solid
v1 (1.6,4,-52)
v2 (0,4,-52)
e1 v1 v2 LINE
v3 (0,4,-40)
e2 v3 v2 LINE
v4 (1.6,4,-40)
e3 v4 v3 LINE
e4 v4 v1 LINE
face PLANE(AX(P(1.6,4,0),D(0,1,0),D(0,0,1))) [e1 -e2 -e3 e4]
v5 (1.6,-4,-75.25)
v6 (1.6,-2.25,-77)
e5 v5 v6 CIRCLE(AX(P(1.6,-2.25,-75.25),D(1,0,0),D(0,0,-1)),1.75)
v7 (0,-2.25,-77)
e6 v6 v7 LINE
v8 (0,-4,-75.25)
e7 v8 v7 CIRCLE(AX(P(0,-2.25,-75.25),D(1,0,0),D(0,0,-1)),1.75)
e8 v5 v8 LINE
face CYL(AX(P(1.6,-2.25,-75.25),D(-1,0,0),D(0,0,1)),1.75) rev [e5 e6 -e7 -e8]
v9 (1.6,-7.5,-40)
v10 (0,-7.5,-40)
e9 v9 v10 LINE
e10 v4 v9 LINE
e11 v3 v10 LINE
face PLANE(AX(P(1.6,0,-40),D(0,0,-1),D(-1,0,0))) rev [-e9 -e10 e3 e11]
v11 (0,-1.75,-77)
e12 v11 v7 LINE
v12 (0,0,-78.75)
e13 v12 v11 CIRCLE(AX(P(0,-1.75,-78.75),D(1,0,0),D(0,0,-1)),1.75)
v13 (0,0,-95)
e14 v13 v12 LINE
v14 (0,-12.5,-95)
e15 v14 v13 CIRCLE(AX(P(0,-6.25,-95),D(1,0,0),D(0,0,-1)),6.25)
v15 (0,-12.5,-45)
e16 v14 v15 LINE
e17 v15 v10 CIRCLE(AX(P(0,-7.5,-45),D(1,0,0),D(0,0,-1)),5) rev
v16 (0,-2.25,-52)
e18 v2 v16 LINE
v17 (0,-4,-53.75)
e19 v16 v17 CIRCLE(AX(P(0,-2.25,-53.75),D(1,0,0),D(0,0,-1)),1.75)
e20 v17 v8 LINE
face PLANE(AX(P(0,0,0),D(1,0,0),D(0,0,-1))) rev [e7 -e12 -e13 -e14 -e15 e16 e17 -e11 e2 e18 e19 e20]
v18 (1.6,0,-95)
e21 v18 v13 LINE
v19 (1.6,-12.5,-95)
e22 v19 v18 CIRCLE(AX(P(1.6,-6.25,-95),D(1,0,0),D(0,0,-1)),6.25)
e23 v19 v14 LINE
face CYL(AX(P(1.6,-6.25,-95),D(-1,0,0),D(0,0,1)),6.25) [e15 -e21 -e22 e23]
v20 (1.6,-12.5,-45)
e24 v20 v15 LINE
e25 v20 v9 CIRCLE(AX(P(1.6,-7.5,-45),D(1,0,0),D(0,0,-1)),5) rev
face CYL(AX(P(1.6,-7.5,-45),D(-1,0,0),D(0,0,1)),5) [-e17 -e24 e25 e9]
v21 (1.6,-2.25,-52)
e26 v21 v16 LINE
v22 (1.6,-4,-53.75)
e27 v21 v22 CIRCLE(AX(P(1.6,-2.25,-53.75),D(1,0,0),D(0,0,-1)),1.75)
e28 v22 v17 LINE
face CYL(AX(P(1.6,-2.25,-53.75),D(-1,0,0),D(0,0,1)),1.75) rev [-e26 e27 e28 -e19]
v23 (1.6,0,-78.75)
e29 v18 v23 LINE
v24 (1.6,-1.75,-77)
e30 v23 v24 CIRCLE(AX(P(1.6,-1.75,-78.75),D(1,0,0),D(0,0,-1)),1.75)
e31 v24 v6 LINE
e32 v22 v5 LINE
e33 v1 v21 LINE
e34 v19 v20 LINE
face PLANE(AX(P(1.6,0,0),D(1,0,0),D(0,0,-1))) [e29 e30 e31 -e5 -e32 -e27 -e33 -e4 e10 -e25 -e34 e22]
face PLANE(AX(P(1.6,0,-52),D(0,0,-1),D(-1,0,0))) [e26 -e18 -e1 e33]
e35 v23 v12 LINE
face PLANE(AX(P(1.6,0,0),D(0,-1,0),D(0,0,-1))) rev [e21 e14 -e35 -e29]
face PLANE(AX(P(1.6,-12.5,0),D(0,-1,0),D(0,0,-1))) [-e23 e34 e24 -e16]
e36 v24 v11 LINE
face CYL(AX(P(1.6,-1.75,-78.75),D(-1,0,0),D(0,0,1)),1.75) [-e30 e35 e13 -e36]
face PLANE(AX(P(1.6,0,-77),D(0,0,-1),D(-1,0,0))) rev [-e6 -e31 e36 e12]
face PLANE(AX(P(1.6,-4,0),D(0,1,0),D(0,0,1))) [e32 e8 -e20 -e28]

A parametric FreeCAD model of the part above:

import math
import FreeCAD as App
import Part
import Sketcher
from FreeCAD import Vector
Q = App.Units.Quantity

doc = App.newDocument("Part")
params = doc.addObject("Spreadsheet::Sheet", "Params")
for row, (alias, value) in enumerate([
    ("sketch1_radius", "5 mm"),
    ("sketch1_height", "50 mm"),
    ("sketch1_height2", "12 mm"),
    ("sketch1_radius2", "6.25 mm"),
    ("sketch1_radius3", "1.75 mm"),
    ("pad1_length", "1.6 mm"),
], start=1):
    params.set(f"A{row}", alias)
    params.set(f"B{row}", "=" + value)
    params.setAlias(f"B{row}", alias)

body = doc.addObject("PartDesign::Body", "Body")

# Sketch on YZ plane
sketch1 = doc.addObject("Sketcher::SketchObject", "Sketch")
body.addObject(sketch1)
sketch1.AttachmentSupport = (doc.YZ_Plane, [""])
sketch1.MapMode = "FlatFace"
sketch1.addGeometry([
    Part.LineSegment(Vector(-12.5, -45, 0), Vector(-12.5, -95, 0)),  # 0
    Part.ArcOfCircle(Part.Circle(Vector(-6.25, -95, 0), Vector(0, 0, 1), 6.25), math.radians(180), math.radians(360)),  # 1
    Part.LineSegment(Vector(0, -95, 0), Vector(0, -78.75, 0)),  # 2
    Part.ArcOfCircle(Part.Circle(Vector(-1.75, -78.75, 0), Vector(0, 0, 1), 1.75), math.radians(0), math.radians(90)),  # 3
    Part.LineSegment(Vector(-1.75, -77, 0), Vector(-2.25, -77, 0)),  # 4
    Part.ArcOfCircle(Part.Circle(Vector(-2.25, -75.25, 0), Vector(0, 0, 1), 1.75), math.radians(180), math.radians(270)),  # 5
    Part.LineSegment(Vector(-4, -75.25, 0), Vector(-4, -53.75, 0)),  # 6
    Part.ArcOfCircle(Part.Circle(Vector(-2.25, -53.75, 0), Vector(0, 0, 1), 1.75), math.radians(90), math.radians(180)),  # 7
    Part.LineSegment(Vector(-2.25, -52, 0), Vector(4, -52, 0)),  # 8
    Part.LineSegment(Vector(4, -52, 0), Vector(4, -40, 0)),  # 9
    Part.LineSegment(Vector(4, -40, 0), Vector(-7.5, -40, 0)),  # 10
    Part.ArcOfCircle(Part.Circle(Vector(-7.5, -45, 0), Vector(0, 0, 1), 5), math.radians(90), math.radians(180)),  # 11
], False)
sketch1.addConstraint([
    Sketcher.Constraint("Tangent", 0, 2, 1, 1),
    Sketcher.Constraint("Tangent", 1, 2, 2, 1),
    Sketcher.Constraint("Tangent", 2, 2, 3, 1),
    Sketcher.Constraint("Tangent", 3, 2, 4, 1),
    Sketcher.Constraint("Tangent", 4, 2, 5, 2),
    Sketcher.Constraint("Tangent", 5, 1, 6, 1),
    Sketcher.Constraint("Tangent", 6, 2, 7, 2),
    Sketcher.Constraint("Tangent", 7, 1, 8, 1),
    Sketcher.Constraint("Coincident", 8, 2, 9, 1),
    Sketcher.Constraint("Coincident", 9, 2, 10, 1),
    Sketcher.Constraint("Tangent", 10, 2, 11, 1),
    Sketcher.Constraint("Tangent", 11, 2, 0, 1),
    Sketcher.Constraint("Vertical", 0),
    Sketcher.Constraint("Vertical", 2),
    Sketcher.Constraint("Horizontal", 4),
    Sketcher.Constraint("Vertical", 6),
    Sketcher.Constraint("Horizontal", 8),
    Sketcher.Constraint("Vertical", 9),
    Sketcher.Constraint("Horizontal", 10),
    Sketcher.Constraint("Equal", 3, 5),
    Sketcher.Constraint("Equal", 5, 7),
    Sketcher.Constraint("PointOnObject", 1, 2, -2),
    Sketcher.Constraint("Radius", 11, Q("5 mm")),
    Sketcher.Constraint("DistanceY", 0, 2, 0, 1, Q("50 mm")),
    Sketcher.Constraint("DistanceY", 9, 1, 9, 2, Q("12 mm")),
    Sketcher.Constraint("Radius", 1, Q("6.25 mm")),
    Sketcher.Constraint("Radius", 3, Q("1.75 mm")),
    Sketcher.Constraint("DistanceX", 4, 2, 4, 1, Q("0.5 mm")),
    Sketcher.Constraint("DistanceX", 10, 2, 10, 1, Q("11.5 mm")),
    Sketcher.Constraint("DistanceY", 6, 1, 6, 2, Q("21.5 mm")),
    Sketcher.Constraint("DistanceY", 1, 3, -1, 1, Q("95 mm")),
])
sketch1.setExpression("Constraints[22]", "Params.sketch1_radius")
sketch1.setExpression("Constraints[23]", "Params.sketch1_height")
sketch1.setExpression("Constraints[24]", "Params.sketch1_height2")
sketch1.setExpression("Constraints[25]", "Params.sketch1_radius2")
sketch1.setExpression("Constraints[26]", "Params.sketch1_radius3")
pad1 = doc.addObject("PartDesign::Pad", "Pad")
body.addObject(pad1)
pad1.Profile = sketch1
pad1.setExpression("Length", "Params.pad1_length")

doc.recompute()
